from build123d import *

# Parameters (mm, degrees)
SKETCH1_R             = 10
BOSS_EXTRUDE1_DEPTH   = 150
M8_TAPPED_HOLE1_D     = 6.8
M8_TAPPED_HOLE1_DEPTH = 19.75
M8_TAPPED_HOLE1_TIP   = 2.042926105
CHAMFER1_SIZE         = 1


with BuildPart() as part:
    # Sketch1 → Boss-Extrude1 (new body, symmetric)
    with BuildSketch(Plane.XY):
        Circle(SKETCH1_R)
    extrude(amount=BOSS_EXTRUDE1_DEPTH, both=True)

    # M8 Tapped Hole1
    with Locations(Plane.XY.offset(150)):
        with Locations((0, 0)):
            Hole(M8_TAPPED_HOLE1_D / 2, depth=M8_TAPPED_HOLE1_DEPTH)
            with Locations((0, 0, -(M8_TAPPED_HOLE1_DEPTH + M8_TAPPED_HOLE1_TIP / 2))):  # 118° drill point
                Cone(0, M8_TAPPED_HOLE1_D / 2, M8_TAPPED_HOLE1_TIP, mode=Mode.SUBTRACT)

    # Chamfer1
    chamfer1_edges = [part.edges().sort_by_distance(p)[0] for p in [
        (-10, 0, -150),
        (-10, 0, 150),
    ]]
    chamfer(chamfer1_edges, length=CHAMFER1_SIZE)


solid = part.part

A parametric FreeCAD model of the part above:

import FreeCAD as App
import Part
import Sketcher

V = App.Vector


def edges_at(feature, points):
    """Names of the edges that pass closest to the given points."""
    edges = feature.Shape.Edges
    near = lambda p: min(range(len(edges)), key=lambda i: edges[i].distToShape(Part.Vertex(*p))[0])
    return sorted({f"Edge{near(p) + 1}" for p in points})

doc = App.newDocument("Part")
body = doc.addObject("PartDesign::Body", "Body")

sketch1 = body.newObject("Sketcher::SketchObject", "Sketch")
sketch1.AttachmentSupport = (doc.getObject("XY_Plane"), [""])
sketch1.MapMode = "FlatFace"
sketch1.addGeometry(Part.Circle(V(0, 0, 0), V(0, 0, 1), 10), False)
sketch1.addConstraint([
    Sketcher.Constraint("Coincident", 0, 3, -1, 1),
    Sketcher.Constraint("Diameter", 0, 20.0),
])
pad1 = body.newObject("PartDesign::Pad", "Pad")
pad1.Profile = sketch1
pad1.Length = 300
pad1.Midplane = True

sketch2 = body.newObject("Sketcher::SketchObject", "Sketch001")
sketch2.AttachmentSupport = (doc.getObject("XY_Plane"), [""])
sketch2.MapMode = "FlatFace"
sketch2.AttachmentOffset = App.Placement(V(0, 0, 150), App.Rotation())
sketch2.addGeometry(Part.Circle(V(0, 0, 0), V(0, 0, 1), 3.4), False)
sketch2.addConstraint([
    Sketcher.Constraint("Coincident", 0, 3, -1, 1),
    Sketcher.Constraint("Diameter", 0, 6.8),
])
doc.recompute()
hole = body.newObject("PartDesign::Hole", "Hole")
hole.Profile = sketch2
hole.ThreadType = "None"
hole.Diameter = 6.8
hole.DepthType = "Dimension"
hole.Depth = 19.75
hole.DrillPoint = "Angled"
hole.DrillPointAngle = 118
doc.recompute()

chamfer = body.newObject("PartDesign::Chamfer", "Chamfer")
chamfer.Base = (hole, edges_at(hole, [(-10, 0, -150), (-10, 0, 150)]))
chamfer.Size = 1

doc.recompute()
